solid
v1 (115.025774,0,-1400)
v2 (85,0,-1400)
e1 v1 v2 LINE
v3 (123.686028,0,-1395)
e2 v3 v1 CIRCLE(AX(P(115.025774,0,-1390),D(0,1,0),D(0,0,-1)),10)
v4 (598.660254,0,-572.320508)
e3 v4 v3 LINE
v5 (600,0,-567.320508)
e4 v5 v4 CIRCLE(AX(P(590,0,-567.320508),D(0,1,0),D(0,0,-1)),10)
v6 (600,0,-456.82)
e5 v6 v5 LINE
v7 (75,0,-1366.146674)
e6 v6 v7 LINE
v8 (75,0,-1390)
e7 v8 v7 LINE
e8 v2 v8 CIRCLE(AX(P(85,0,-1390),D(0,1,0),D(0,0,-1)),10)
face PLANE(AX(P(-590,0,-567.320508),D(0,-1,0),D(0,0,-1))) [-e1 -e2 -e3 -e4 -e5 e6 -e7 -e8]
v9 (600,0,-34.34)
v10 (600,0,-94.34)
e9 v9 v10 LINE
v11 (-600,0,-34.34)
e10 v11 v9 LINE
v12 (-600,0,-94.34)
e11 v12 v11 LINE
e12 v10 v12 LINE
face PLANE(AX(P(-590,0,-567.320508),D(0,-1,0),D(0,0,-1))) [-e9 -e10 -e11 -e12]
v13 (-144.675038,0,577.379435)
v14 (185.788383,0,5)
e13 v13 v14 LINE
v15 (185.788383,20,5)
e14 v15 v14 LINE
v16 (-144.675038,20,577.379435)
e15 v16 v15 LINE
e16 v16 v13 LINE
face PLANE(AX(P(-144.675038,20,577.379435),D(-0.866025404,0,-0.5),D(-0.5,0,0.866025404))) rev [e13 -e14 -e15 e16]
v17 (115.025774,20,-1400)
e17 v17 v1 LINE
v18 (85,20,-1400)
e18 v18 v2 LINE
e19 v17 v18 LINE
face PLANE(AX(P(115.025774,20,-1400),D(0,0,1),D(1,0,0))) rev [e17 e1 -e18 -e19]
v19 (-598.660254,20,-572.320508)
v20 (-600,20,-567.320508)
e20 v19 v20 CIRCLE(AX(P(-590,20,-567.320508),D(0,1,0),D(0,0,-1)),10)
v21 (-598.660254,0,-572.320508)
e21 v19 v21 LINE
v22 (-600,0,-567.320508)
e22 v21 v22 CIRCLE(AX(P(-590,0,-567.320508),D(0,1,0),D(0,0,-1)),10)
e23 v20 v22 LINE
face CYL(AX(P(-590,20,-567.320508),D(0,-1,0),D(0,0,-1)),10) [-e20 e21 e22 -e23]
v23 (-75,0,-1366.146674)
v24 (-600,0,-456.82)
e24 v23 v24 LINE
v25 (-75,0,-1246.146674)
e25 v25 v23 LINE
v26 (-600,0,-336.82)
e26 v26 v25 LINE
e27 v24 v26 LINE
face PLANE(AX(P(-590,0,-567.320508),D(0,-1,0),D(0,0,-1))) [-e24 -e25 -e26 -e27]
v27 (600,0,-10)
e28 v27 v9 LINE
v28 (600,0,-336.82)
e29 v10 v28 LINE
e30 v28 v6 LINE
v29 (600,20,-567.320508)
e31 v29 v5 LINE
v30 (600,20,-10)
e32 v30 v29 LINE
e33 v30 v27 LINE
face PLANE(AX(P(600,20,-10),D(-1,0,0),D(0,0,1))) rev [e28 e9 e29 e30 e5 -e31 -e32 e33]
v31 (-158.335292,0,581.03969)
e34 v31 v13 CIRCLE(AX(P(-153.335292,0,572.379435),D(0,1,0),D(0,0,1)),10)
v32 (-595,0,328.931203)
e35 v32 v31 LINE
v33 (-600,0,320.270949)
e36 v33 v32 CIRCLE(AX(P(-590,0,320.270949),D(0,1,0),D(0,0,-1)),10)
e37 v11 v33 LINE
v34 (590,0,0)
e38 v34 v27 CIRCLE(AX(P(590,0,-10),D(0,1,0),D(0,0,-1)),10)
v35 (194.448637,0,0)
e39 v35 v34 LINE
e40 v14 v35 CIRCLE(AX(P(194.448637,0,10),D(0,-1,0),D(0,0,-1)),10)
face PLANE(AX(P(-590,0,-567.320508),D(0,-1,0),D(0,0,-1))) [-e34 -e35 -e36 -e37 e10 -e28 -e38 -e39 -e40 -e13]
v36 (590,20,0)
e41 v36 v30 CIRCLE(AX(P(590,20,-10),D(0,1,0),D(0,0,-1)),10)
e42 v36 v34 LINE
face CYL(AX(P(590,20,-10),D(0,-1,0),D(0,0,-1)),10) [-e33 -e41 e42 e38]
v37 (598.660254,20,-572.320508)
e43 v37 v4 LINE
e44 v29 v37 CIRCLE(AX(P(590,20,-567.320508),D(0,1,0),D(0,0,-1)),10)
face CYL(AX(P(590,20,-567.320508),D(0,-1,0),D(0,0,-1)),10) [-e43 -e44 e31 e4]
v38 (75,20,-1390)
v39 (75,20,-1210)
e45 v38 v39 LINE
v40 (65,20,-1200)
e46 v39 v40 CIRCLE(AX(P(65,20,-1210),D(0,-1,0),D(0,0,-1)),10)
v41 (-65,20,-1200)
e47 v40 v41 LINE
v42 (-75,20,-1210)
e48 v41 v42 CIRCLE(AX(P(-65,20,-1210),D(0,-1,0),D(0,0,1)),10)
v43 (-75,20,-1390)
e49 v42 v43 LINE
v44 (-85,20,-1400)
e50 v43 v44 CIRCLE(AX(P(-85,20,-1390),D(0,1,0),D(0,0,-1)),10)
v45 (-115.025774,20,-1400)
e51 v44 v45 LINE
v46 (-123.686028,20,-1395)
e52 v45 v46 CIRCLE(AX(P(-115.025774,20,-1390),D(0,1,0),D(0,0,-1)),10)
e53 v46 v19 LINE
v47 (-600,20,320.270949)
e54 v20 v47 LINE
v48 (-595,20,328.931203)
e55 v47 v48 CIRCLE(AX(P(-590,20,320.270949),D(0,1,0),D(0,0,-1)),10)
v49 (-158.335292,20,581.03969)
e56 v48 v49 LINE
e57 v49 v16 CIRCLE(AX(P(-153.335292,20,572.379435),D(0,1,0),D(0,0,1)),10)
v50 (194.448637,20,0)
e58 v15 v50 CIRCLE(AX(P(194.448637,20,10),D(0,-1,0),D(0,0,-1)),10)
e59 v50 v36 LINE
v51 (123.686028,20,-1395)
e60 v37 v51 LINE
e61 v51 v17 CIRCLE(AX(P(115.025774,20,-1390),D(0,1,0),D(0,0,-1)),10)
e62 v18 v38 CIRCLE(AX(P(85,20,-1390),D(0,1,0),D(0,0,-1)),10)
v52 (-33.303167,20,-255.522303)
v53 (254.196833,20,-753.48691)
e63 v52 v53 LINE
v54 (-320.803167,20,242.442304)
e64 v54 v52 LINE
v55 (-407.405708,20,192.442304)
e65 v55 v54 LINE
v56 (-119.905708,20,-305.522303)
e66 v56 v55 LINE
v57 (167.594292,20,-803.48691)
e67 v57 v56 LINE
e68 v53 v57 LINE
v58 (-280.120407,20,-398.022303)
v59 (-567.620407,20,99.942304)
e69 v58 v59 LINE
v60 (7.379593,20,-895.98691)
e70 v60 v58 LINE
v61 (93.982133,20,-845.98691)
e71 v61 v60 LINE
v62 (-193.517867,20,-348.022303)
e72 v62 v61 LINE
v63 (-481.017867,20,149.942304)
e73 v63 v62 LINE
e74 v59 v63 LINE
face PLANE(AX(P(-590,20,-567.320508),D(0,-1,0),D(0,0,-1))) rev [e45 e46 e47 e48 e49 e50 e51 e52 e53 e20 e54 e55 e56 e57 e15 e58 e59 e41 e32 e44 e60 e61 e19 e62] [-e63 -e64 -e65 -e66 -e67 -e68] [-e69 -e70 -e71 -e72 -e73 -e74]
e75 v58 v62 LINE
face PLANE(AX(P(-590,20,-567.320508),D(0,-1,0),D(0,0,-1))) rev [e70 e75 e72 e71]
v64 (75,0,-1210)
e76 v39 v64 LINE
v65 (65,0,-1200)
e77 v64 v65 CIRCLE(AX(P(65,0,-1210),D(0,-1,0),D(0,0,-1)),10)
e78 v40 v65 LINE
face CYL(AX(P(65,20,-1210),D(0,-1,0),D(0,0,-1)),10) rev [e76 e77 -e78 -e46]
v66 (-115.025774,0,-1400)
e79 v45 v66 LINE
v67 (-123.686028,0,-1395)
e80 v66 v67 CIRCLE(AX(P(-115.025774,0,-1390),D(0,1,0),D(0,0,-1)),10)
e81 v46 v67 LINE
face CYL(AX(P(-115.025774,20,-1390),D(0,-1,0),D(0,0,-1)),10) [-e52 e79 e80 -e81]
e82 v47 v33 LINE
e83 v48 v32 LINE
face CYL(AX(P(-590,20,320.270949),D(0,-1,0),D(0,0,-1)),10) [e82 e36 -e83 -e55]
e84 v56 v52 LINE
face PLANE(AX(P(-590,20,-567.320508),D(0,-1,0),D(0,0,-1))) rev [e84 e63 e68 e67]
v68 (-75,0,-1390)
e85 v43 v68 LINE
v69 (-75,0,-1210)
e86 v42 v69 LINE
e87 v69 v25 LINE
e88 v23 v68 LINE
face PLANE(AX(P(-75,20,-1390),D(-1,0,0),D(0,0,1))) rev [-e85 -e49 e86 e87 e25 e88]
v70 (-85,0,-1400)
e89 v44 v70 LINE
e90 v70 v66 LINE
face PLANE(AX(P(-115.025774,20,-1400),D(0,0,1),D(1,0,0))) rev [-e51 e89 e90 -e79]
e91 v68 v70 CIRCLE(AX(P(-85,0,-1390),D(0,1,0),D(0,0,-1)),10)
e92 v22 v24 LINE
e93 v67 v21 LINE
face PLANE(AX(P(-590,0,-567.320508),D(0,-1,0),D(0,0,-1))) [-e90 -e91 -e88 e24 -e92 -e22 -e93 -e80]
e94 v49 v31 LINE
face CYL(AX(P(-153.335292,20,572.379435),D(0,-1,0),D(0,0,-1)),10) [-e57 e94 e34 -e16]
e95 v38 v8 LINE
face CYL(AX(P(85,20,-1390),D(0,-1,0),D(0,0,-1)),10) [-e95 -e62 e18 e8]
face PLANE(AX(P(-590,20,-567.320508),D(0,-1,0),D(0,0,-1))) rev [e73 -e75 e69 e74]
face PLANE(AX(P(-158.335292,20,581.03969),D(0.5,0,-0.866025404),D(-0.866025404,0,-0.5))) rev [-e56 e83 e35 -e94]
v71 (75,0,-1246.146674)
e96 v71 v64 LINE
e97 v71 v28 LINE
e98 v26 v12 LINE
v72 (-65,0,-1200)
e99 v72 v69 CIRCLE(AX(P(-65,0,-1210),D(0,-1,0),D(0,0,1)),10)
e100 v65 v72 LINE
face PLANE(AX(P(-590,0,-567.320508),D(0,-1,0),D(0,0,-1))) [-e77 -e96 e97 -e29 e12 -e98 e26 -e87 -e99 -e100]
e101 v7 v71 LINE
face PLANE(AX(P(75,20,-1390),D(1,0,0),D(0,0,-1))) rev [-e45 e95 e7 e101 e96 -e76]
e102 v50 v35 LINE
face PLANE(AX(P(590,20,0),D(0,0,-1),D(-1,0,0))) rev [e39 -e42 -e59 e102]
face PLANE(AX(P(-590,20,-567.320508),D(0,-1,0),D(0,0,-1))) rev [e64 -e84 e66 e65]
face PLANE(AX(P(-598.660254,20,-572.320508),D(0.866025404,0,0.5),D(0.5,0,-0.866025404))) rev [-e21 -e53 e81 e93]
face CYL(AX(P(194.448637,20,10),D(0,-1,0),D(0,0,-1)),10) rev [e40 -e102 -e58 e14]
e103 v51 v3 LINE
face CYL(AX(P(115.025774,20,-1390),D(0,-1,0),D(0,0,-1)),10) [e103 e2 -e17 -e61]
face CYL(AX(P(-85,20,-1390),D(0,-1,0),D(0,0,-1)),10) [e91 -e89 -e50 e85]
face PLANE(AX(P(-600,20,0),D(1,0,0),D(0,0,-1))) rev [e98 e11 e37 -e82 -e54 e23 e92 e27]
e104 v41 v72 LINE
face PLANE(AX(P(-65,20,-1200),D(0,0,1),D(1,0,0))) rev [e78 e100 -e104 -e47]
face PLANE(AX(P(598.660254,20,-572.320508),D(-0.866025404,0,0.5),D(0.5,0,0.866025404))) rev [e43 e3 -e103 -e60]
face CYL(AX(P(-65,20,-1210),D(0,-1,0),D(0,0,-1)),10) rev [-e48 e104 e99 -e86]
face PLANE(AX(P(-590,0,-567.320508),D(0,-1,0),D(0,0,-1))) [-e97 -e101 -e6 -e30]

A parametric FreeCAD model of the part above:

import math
import FreeCAD as App
import Part
import Sketcher

V = App.Vector
Q = App.Units.Quantity

doc = App.newDocument("Part")
body = doc.addObject("PartDesign::Body", "Body")

# Sketch on XZ plane
sketch1 = body.newObject("Sketcher::SketchObject", "Sketch")
sketch1.AttachmentSupport = (doc.getObject("XZ_Plane"), [""])
sketch1.MapMode = "FlatFace"
sketch1.addGeometry([
    Part.LineSegment(V(194, 0, 0), V(590, 0, 0)),  # 0
    Part.ArcOfCircle(Part.Circle(V(590, -10, 0), V(0, 0, 1), 10), math.radians(0), math.radians(90)),  # 1
    Part.LineSegment(V(600, -10, 0), V(600, -567, 0)),  # 2
    Part.ArcOfCircle(Part.Circle(V(590, -567, 0), V(0, 0, 1), 10), math.radians(-30), math.radians(0)),  # 3
    Part.LineSegment(V(599, -572, 0), V(124, -1395, 0)),  # 4
    Part.ArcOfCircle(Part.Circle(V(115, -1390, 0), V(0, 0, 1), 10), math.radians(-90), math.radians(-30)),  # 5
    Part.LineSegment(V(115, -1400, 0), V(85, -1400, 0)),  # 6
    Part.ArcOfCircle(Part.Circle(V(85, -1390, 0), V(0, 0, 1), 10), math.radians(180), math.radians(270)),  # 7
    Part.LineSegment(V(75, -1390, 0), V(75, -1210, 0)),  # 8
    Part.ArcOfCircle(Part.Circle(V(65, -1210, 0), V(0, 0, 1), 10), math.radians(0), math.radians(90)),  # 9
    Part.LineSegment(V(65, -1200, 0), V(-65, -1200, 0)),  # 10
    Part.ArcOfCircle(Part.Circle(V(-65, -1210, 0), V(0, 0, 1), 10), math.radians(90), math.radians(180)),  # 11
    Part.LineSegment(V(-75, -1210, 0), V(-75, -1390, 0)),  # 12
    Part.ArcOfCircle(Part.Circle(V(-85, -1390, 0), V(0, 0, 1), 10), math.radians(-90), math.radians(0)),  # 13
    Part.LineSegment(V(-85, -1400, 0), V(-115, -1400, 0)),  # 14
    Part.ArcOfCircle(Part.Circle(V(-115, -1390, 0), V(0, 0, 1), 10), math.radians(-150), math.radians(-90)),  # 15
    Part.LineSegment(V(-124, -1395, 0), V(-599, -572, 0)),  # 16
    Part.ArcOfCircle(Part.Circle(V(-590, -567, 0), V(0, 0, 1), 10), math.radians(180), math.radians(210)),  # 17
    Part.LineSegment(V(-600, -567, 0), V(-600, 320, 0)),  # 18
    Part.ArcOfCircle(Part.Circle(V(-590, 320, 0), V(0, 0, 1), 10), math.radians(120), math.radians(180)),  # 19
    Part.LineSegment(V(-595, 329, 0), V(-158, 581, 0)),  # 20
    Part.ArcOfCircle(Part.Circle(V(-153, 572, 0), V(0, 0, 1), 10), math.radians(30), math.radians(120)),  # 21
    Part.LineSegment(V(-145, 577, 0), V(186, 5, 0)),  # 22
    Part.ArcOfCircle(Part.Circle(V(194, 10, 0), V(0, 0, 1), 10), math.radians(-150), math.radians(-90)),  # 23
], False)
sketch1.addConstraint([
    Sketcher.Constraint("Tangent", 0, 2, 1, 2),
    Sketcher.Constraint("Tangent", 1, 1, 2, 1),
    Sketcher.Constraint("Tangent", 2, 2, 3, 2),
    Sketcher.Constraint("Tangent", 3, 1, 4, 1),
    Sketcher.Constraint("Tangent", 4, 2, 5, 2),
    Sketcher.Constraint("Tangent", 5, 1, 6, 1),
    Sketcher.Constraint("Tangent", 6, 2, 7, 2),
    Sketcher.Constraint("Tangent", 7, 1, 8, 1),
    Sketcher.Constraint("Tangent", 8, 2, 9, 1),
    Sketcher.Constraint("Tangent", 9, 2, 10, 1),
    Sketcher.Constraint("Tangent", 10, 2, 11, 1),
    Sketcher.Constraint("Tangent", 11, 2, 12, 1),
    Sketcher.Constraint("Tangent", 12, 2, 13, 2),
    Sketcher.Constraint("Tangent", 13, 1, 14, 1),
    Sketcher.Constraint("Tangent", 14, 2, 15, 2),
    Sketcher.Constraint("Tangent", 15, 1, 16, 1),
    Sketcher.Constraint("Tangent", 16, 2, 17, 2),
    Sketcher.Constraint("Tangent", 17, 1, 18, 1),
    Sketcher.Constraint("Tangent", 18, 2, 19, 2),
    Sketcher.Constraint("Tangent", 19, 1, 20, 1),
    Sketcher.Constraint("Tangent", 20, 2, 21, 2),
    Sketcher.Constraint("Tangent", 21, 1, 22, 1),
    Sketcher.Constraint("Tangent", 22, 2, 23, 1),
    Sketcher.Constraint("Tangent", 23, 2, 0, 1),
    Sketcher.Constraint("Horizontal", 0),
    Sketcher.Constraint("Vertical", 2),
    Sketcher.Constraint("Horizontal", 6),
    Sketcher.Constraint("Vertical", 8),
    Sketcher.Constraint("Horizontal", 10),
    Sketcher.Constraint("Vertical", 12),
    Sketcher.Constraint("Horizontal", 14),
    Sketcher.Constraint("Vertical", 18),
    Sketcher.Constraint("Equal", 1, 3),
    Sketcher.Constraint("Equal", 3, 5),
    Sketcher.Constraint("Equal", 5, 7),
    Sketcher.Constraint("Equal", 7, 9),
    Sketcher.Constraint("Equal", 9, 11),
    Sketcher.Constraint("Equal", 11, 13),
    Sketcher.Constraint("Equal", 13, 15),
    Sketcher.Constraint("Equal", 15, 17),
    Sketcher.Constraint("Equal", 17, 19),
    Sketcher.Constraint("Equal", 19, 21),
    Sketcher.Constraint("Equal", 21, 23),
    Sketcher.Constraint("Symmetric", 7, 3, 13, 3, -2),
    Sketcher.Constraint("Symmetric", 3, 3, 17, 3, -2),
    Sketcher.Constraint("PointOnObject", 0, 2, -1),
    Sketcher.Constraint("Perpendicular", 16, 20),
    Sketcher.Constraint("Perpendicular", 20, 22),
    Sketcher.Constraint("Equal", 6, 14),
    Sketcher.Constraint("Radius", 1, 10.0),
    Sketcher.Constraint("DistanceX", 10, 2, 10, 1, 130.0),
    Sketcher.Constraint("DistanceY", 8, 1, 8, 2, 180.0),
    Sketcher.Constraint("Angle", 4, Q("-120 deg")),
    Sketcher.Constraint("DistanceX", -1, 1, 1, 3, 590.0),
    Sketcher.Constraint("DistanceY", 5, 3, -1, 1, 1390.0),
    Sketcher.Constraint("DistanceY", 2, 2, 2, 1, 557.320508),
    Sketcher.Constraint("DistanceX", 0, 1, 0, 2, 395.551363),
    Sketcher.Constraint("DistanceY", 18, 1, 18, 2, 887.591457),
])
pad1 = body.newObject("PartDesign::Pad", "Pad")
pad1.Profile = sketch1
pad1.Length = 20
pad1.Reversed = True

doc.recompute()
